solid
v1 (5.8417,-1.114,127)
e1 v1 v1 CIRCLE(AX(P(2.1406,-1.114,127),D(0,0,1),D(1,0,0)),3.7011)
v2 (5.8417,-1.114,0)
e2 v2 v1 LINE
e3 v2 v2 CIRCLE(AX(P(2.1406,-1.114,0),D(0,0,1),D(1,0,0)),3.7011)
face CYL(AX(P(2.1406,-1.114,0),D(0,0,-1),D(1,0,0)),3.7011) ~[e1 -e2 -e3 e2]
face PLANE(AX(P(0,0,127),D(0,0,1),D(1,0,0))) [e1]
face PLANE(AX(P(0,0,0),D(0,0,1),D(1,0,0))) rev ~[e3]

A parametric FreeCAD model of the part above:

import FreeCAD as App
import Part
import Sketcher
from FreeCAD import Vector
Q = App.Units.Quantity

doc = App.newDocument("Part")
body = doc.addObject("PartDesign::Body", "Body")

# Sketch on XY plane
sketch1 = body.newObject("Sketcher::SketchObject", "Sketch")
sketch1.AttachmentSupport = (doc.getObject("XY_Plane"), [""])
sketch1.MapMode = "FlatFace"
sketch1.addGeometry(Part.Circle(Vector(2.1406, -1.114, 0), Vector(0, 0, 1), 3.7011), False)
sketch1.addConstraint([
    Sketcher.Constraint("Diameter", 0, 7.4022),
    Sketcher.Constraint("DistanceX", -1, 1, 0, 3, 2.1406),
    Sketcher.Constraint("DistanceY", 0, 3, -1, 1, 1.114),
])
pad1 = body.newObject("PartDesign::Pad", "Pad")
pad1.Profile = sketch1
pad1.Length = Q("5 in")

doc.recompute()
